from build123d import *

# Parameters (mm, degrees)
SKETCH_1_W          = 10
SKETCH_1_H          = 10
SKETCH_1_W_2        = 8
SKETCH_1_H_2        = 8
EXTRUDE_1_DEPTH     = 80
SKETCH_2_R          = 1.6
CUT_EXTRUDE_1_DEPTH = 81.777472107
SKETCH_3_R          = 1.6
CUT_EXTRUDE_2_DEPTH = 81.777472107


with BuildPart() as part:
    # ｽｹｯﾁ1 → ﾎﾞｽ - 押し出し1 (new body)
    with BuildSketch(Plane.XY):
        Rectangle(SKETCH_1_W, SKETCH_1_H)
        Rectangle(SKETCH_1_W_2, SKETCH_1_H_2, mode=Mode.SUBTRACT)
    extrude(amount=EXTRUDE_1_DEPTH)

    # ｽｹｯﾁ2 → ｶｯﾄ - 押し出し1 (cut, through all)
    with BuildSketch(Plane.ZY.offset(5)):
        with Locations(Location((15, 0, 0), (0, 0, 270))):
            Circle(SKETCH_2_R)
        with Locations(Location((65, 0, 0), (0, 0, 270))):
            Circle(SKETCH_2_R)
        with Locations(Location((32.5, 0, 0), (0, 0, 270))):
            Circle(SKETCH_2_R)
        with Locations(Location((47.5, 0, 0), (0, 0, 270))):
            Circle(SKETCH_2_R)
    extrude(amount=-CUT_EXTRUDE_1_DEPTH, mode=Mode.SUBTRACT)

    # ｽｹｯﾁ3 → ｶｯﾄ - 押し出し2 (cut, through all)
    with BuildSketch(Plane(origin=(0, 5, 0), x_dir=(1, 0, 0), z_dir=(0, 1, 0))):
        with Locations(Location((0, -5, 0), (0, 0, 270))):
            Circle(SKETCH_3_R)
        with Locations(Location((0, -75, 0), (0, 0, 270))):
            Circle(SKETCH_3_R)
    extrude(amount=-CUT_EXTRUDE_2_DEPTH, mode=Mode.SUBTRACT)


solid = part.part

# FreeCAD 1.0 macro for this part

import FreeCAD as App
import Part
import Sketcher
Q = App.Units.Quantity


def add_polygon(sketch, points):
    """Adds a closed chain of lines whose ends are joined by coincident constraints."""
    first, n = sketch.GeometryCount, len(points)
    for a, b in zip(points, points[1:] + points[:1]):
        sketch.addGeometry(Part.LineSegment(App.Vector(*a, 0), App.Vector(*b, 0)), False)
    for i in range(n):
        sketch.addConstraint(Sketcher.Constraint("Coincident", first + i, 2, first + (i + 1) % n, 1))

doc = App.newDocument("Part")
params = doc.addObject("Spreadsheet::Sheet", "Params")
for row, (alias, value) in enumerate([
    ("sketch1_width", "10 mm"),
    ("sketch1_width2", "8 mm"),
    ("pad1_length", "80 mm"),
    ("sketch2_diameter", "3.2 mm"),
    ("sketch3_diameter", "3.2 mm"),
], start=1):
    params.set(f"A{row}", alias)
    params.set(f"B{row}", "=" + value)
    params.setAlias(f"B{row}", alias)

body = doc.addObject("PartDesign::Body", "Body")

# Sketch on XY plane
sketch1 = body.newObject("Sketcher::SketchObject", "Sketch")
sketch1.AttachmentSupport = (doc.getObject("XY_Plane"), [""])
sketch1.MapMode = "FlatFace"
add_polygon(sketch1, [(-5, 5), (-5, -5), (5, -5), (5, 5)])  # lines 0-3
add_polygon(sketch1, [(4, -4), (-4, -4), (-4, 4), (4, 4)])  # lines 4-7
sketch1.addConstraint([
    Sketcher.Constraint("Vertical", 0),
    Sketcher.Constraint("Horizontal", 1),
    Sketcher.Constraint("Vertical", 2),
    Sketcher.Constraint("Horizontal", 3),
    Sketcher.Constraint("Horizontal", 4),
    Sketcher.Constraint("Vertical", 5),
    Sketcher.Constraint("Horizontal", 6),
    Sketcher.Constraint("Vertical", 7),
    Sketcher.Constraint("Symmetric", 0, 2, 2, 2, -1, 1),
    Sketcher.Constraint("Symmetric", 4, 2, 6, 2, -1, 1),
    Sketcher.Constraint("Equal", 3, 0),
    Sketcher.Constraint("Equal", 6, 5),
    Sketcher.Constraint("DistanceX", 1, 1, 1, 2, Q("10 mm")),
    Sketcher.Constraint("DistanceX", 4, 2, 4, 1, Q("8 mm")),
])
sketch1.setExpression("Constraints[20]", "Params.sketch1_width")
sketch1.setExpression("Constraints[21]", "Params.sketch1_width2")
pad1 = body.newObject("PartDesign::Pad", "Pad")
pad1.Profile = sketch1
pad1.setExpression("Length", "Params.pad1_length")

# Sketch on YZ plane
sketch2 = body.newObject("Sketcher::SketchObject", "Sketch001")
sketch2.AttachmentSupport = (doc.getObject("YZ_Plane"), [""])
sketch2.MapMode = "FlatFace"
sketch2.AttachmentOffset = App.Placement(App.Vector(0, 0, -5), App.Rotation())
sketch2.addGeometry([
    Part.Circle(App.Vector(0, 15, 0), App.Vector(0, 0, 1), 1.6),
    Part.Circle(App.Vector(0, 65, 0), App.Vector(0, 0, 1), 1.6),
    Part.Circle(App.Vector(0, 32.5, 0), App.Vector(0, 0, 1), 1.6),
    Part.Circle(App.Vector(0, 47.5, 0), App.Vector(0, 0, 1), 1.6),
], False)
sketch2.addConstraint([
    Sketcher.Constraint("Equal", 0, 1),
    Sketcher.Constraint("Equal", 1, 2),
    Sketcher.Constraint("Equal", 2, 3),
    Sketcher.Constraint("PointOnObject", 0, 3, -2),
    Sketcher.Constraint("PointOnObject", 1, 3, -2),
    Sketcher.Constraint("PointOnObject", 2, 3, -2),
    Sketcher.Constraint("PointOnObject", 3, 3, -2),
    Sketcher.Constraint("Diameter", 0, Q("3.2 mm")),
    Sketcher.Constraint("DistanceY", -1, 1, 0, 3, Q("15 mm")),
    Sketcher.Constraint("DistanceY", -1, 1, 1, 3, Q("65 mm")),
    Sketcher.Constraint("DistanceY", 2, 3, 3, 3, Q("15 mm")),
    Sketcher.Constraint("DistanceY", -1, 1, 2, 3, Q("32.5 mm")),
])
sketch2.setExpression("Constraints[7]", "Params.sketch2_diameter")
pocket1 = body.newObject("PartDesign::Pocket", "Pocket")
pocket1.Profile = sketch2
pocket1.Type = "ThroughAll"
pocket1.Reversed = True

# Sketch on XZ plane
sketch3 = body.newObject("Sketcher::SketchObject", "Sketch002")
sketch3.AttachmentSupport = (doc.getObject("XZ_Plane"), [""])
sketch3.MapMode = "FlatFace"
sketch3.AttachmentOffset = App.Placement(App.Vector(0, 0, -5), App.Rotation())
sketch3.addGeometry([
    Part.Circle(App.Vector(0, 5, 0), App.Vector(0, 0, 1), 1.6),
    Part.Circle(App.Vector(0, 75, 0), App.Vector(0, 0, 1), 1.6),
], False)
sketch3.addConstraint([
    Sketcher.Constraint("Equal", 0, 1),
    Sketcher.Constraint("PointOnObject", 0, 3, -2),
    Sketcher.Constraint("PointOnObject", 1, 3, -2),
    Sketcher.Constraint("Diameter", 0, Q("3.2 mm")),
    Sketcher.Constraint("DistanceY", -1, 1, 0, 3, Q("5 mm")),
    Sketcher.Constraint("DistanceY", -1, 1, 1, 3, Q("75 mm")),
])
sketch3.setExpression("Constraints[3]", "Params.sketch3_diameter")
pocket2 = body.newObject("PartDesign::Pocket", "Pocket001")
pocket2.Profile = sketch3
pocket2.Type = "ThroughAll"
pocket2.Reversed = True

doc.recompute()
